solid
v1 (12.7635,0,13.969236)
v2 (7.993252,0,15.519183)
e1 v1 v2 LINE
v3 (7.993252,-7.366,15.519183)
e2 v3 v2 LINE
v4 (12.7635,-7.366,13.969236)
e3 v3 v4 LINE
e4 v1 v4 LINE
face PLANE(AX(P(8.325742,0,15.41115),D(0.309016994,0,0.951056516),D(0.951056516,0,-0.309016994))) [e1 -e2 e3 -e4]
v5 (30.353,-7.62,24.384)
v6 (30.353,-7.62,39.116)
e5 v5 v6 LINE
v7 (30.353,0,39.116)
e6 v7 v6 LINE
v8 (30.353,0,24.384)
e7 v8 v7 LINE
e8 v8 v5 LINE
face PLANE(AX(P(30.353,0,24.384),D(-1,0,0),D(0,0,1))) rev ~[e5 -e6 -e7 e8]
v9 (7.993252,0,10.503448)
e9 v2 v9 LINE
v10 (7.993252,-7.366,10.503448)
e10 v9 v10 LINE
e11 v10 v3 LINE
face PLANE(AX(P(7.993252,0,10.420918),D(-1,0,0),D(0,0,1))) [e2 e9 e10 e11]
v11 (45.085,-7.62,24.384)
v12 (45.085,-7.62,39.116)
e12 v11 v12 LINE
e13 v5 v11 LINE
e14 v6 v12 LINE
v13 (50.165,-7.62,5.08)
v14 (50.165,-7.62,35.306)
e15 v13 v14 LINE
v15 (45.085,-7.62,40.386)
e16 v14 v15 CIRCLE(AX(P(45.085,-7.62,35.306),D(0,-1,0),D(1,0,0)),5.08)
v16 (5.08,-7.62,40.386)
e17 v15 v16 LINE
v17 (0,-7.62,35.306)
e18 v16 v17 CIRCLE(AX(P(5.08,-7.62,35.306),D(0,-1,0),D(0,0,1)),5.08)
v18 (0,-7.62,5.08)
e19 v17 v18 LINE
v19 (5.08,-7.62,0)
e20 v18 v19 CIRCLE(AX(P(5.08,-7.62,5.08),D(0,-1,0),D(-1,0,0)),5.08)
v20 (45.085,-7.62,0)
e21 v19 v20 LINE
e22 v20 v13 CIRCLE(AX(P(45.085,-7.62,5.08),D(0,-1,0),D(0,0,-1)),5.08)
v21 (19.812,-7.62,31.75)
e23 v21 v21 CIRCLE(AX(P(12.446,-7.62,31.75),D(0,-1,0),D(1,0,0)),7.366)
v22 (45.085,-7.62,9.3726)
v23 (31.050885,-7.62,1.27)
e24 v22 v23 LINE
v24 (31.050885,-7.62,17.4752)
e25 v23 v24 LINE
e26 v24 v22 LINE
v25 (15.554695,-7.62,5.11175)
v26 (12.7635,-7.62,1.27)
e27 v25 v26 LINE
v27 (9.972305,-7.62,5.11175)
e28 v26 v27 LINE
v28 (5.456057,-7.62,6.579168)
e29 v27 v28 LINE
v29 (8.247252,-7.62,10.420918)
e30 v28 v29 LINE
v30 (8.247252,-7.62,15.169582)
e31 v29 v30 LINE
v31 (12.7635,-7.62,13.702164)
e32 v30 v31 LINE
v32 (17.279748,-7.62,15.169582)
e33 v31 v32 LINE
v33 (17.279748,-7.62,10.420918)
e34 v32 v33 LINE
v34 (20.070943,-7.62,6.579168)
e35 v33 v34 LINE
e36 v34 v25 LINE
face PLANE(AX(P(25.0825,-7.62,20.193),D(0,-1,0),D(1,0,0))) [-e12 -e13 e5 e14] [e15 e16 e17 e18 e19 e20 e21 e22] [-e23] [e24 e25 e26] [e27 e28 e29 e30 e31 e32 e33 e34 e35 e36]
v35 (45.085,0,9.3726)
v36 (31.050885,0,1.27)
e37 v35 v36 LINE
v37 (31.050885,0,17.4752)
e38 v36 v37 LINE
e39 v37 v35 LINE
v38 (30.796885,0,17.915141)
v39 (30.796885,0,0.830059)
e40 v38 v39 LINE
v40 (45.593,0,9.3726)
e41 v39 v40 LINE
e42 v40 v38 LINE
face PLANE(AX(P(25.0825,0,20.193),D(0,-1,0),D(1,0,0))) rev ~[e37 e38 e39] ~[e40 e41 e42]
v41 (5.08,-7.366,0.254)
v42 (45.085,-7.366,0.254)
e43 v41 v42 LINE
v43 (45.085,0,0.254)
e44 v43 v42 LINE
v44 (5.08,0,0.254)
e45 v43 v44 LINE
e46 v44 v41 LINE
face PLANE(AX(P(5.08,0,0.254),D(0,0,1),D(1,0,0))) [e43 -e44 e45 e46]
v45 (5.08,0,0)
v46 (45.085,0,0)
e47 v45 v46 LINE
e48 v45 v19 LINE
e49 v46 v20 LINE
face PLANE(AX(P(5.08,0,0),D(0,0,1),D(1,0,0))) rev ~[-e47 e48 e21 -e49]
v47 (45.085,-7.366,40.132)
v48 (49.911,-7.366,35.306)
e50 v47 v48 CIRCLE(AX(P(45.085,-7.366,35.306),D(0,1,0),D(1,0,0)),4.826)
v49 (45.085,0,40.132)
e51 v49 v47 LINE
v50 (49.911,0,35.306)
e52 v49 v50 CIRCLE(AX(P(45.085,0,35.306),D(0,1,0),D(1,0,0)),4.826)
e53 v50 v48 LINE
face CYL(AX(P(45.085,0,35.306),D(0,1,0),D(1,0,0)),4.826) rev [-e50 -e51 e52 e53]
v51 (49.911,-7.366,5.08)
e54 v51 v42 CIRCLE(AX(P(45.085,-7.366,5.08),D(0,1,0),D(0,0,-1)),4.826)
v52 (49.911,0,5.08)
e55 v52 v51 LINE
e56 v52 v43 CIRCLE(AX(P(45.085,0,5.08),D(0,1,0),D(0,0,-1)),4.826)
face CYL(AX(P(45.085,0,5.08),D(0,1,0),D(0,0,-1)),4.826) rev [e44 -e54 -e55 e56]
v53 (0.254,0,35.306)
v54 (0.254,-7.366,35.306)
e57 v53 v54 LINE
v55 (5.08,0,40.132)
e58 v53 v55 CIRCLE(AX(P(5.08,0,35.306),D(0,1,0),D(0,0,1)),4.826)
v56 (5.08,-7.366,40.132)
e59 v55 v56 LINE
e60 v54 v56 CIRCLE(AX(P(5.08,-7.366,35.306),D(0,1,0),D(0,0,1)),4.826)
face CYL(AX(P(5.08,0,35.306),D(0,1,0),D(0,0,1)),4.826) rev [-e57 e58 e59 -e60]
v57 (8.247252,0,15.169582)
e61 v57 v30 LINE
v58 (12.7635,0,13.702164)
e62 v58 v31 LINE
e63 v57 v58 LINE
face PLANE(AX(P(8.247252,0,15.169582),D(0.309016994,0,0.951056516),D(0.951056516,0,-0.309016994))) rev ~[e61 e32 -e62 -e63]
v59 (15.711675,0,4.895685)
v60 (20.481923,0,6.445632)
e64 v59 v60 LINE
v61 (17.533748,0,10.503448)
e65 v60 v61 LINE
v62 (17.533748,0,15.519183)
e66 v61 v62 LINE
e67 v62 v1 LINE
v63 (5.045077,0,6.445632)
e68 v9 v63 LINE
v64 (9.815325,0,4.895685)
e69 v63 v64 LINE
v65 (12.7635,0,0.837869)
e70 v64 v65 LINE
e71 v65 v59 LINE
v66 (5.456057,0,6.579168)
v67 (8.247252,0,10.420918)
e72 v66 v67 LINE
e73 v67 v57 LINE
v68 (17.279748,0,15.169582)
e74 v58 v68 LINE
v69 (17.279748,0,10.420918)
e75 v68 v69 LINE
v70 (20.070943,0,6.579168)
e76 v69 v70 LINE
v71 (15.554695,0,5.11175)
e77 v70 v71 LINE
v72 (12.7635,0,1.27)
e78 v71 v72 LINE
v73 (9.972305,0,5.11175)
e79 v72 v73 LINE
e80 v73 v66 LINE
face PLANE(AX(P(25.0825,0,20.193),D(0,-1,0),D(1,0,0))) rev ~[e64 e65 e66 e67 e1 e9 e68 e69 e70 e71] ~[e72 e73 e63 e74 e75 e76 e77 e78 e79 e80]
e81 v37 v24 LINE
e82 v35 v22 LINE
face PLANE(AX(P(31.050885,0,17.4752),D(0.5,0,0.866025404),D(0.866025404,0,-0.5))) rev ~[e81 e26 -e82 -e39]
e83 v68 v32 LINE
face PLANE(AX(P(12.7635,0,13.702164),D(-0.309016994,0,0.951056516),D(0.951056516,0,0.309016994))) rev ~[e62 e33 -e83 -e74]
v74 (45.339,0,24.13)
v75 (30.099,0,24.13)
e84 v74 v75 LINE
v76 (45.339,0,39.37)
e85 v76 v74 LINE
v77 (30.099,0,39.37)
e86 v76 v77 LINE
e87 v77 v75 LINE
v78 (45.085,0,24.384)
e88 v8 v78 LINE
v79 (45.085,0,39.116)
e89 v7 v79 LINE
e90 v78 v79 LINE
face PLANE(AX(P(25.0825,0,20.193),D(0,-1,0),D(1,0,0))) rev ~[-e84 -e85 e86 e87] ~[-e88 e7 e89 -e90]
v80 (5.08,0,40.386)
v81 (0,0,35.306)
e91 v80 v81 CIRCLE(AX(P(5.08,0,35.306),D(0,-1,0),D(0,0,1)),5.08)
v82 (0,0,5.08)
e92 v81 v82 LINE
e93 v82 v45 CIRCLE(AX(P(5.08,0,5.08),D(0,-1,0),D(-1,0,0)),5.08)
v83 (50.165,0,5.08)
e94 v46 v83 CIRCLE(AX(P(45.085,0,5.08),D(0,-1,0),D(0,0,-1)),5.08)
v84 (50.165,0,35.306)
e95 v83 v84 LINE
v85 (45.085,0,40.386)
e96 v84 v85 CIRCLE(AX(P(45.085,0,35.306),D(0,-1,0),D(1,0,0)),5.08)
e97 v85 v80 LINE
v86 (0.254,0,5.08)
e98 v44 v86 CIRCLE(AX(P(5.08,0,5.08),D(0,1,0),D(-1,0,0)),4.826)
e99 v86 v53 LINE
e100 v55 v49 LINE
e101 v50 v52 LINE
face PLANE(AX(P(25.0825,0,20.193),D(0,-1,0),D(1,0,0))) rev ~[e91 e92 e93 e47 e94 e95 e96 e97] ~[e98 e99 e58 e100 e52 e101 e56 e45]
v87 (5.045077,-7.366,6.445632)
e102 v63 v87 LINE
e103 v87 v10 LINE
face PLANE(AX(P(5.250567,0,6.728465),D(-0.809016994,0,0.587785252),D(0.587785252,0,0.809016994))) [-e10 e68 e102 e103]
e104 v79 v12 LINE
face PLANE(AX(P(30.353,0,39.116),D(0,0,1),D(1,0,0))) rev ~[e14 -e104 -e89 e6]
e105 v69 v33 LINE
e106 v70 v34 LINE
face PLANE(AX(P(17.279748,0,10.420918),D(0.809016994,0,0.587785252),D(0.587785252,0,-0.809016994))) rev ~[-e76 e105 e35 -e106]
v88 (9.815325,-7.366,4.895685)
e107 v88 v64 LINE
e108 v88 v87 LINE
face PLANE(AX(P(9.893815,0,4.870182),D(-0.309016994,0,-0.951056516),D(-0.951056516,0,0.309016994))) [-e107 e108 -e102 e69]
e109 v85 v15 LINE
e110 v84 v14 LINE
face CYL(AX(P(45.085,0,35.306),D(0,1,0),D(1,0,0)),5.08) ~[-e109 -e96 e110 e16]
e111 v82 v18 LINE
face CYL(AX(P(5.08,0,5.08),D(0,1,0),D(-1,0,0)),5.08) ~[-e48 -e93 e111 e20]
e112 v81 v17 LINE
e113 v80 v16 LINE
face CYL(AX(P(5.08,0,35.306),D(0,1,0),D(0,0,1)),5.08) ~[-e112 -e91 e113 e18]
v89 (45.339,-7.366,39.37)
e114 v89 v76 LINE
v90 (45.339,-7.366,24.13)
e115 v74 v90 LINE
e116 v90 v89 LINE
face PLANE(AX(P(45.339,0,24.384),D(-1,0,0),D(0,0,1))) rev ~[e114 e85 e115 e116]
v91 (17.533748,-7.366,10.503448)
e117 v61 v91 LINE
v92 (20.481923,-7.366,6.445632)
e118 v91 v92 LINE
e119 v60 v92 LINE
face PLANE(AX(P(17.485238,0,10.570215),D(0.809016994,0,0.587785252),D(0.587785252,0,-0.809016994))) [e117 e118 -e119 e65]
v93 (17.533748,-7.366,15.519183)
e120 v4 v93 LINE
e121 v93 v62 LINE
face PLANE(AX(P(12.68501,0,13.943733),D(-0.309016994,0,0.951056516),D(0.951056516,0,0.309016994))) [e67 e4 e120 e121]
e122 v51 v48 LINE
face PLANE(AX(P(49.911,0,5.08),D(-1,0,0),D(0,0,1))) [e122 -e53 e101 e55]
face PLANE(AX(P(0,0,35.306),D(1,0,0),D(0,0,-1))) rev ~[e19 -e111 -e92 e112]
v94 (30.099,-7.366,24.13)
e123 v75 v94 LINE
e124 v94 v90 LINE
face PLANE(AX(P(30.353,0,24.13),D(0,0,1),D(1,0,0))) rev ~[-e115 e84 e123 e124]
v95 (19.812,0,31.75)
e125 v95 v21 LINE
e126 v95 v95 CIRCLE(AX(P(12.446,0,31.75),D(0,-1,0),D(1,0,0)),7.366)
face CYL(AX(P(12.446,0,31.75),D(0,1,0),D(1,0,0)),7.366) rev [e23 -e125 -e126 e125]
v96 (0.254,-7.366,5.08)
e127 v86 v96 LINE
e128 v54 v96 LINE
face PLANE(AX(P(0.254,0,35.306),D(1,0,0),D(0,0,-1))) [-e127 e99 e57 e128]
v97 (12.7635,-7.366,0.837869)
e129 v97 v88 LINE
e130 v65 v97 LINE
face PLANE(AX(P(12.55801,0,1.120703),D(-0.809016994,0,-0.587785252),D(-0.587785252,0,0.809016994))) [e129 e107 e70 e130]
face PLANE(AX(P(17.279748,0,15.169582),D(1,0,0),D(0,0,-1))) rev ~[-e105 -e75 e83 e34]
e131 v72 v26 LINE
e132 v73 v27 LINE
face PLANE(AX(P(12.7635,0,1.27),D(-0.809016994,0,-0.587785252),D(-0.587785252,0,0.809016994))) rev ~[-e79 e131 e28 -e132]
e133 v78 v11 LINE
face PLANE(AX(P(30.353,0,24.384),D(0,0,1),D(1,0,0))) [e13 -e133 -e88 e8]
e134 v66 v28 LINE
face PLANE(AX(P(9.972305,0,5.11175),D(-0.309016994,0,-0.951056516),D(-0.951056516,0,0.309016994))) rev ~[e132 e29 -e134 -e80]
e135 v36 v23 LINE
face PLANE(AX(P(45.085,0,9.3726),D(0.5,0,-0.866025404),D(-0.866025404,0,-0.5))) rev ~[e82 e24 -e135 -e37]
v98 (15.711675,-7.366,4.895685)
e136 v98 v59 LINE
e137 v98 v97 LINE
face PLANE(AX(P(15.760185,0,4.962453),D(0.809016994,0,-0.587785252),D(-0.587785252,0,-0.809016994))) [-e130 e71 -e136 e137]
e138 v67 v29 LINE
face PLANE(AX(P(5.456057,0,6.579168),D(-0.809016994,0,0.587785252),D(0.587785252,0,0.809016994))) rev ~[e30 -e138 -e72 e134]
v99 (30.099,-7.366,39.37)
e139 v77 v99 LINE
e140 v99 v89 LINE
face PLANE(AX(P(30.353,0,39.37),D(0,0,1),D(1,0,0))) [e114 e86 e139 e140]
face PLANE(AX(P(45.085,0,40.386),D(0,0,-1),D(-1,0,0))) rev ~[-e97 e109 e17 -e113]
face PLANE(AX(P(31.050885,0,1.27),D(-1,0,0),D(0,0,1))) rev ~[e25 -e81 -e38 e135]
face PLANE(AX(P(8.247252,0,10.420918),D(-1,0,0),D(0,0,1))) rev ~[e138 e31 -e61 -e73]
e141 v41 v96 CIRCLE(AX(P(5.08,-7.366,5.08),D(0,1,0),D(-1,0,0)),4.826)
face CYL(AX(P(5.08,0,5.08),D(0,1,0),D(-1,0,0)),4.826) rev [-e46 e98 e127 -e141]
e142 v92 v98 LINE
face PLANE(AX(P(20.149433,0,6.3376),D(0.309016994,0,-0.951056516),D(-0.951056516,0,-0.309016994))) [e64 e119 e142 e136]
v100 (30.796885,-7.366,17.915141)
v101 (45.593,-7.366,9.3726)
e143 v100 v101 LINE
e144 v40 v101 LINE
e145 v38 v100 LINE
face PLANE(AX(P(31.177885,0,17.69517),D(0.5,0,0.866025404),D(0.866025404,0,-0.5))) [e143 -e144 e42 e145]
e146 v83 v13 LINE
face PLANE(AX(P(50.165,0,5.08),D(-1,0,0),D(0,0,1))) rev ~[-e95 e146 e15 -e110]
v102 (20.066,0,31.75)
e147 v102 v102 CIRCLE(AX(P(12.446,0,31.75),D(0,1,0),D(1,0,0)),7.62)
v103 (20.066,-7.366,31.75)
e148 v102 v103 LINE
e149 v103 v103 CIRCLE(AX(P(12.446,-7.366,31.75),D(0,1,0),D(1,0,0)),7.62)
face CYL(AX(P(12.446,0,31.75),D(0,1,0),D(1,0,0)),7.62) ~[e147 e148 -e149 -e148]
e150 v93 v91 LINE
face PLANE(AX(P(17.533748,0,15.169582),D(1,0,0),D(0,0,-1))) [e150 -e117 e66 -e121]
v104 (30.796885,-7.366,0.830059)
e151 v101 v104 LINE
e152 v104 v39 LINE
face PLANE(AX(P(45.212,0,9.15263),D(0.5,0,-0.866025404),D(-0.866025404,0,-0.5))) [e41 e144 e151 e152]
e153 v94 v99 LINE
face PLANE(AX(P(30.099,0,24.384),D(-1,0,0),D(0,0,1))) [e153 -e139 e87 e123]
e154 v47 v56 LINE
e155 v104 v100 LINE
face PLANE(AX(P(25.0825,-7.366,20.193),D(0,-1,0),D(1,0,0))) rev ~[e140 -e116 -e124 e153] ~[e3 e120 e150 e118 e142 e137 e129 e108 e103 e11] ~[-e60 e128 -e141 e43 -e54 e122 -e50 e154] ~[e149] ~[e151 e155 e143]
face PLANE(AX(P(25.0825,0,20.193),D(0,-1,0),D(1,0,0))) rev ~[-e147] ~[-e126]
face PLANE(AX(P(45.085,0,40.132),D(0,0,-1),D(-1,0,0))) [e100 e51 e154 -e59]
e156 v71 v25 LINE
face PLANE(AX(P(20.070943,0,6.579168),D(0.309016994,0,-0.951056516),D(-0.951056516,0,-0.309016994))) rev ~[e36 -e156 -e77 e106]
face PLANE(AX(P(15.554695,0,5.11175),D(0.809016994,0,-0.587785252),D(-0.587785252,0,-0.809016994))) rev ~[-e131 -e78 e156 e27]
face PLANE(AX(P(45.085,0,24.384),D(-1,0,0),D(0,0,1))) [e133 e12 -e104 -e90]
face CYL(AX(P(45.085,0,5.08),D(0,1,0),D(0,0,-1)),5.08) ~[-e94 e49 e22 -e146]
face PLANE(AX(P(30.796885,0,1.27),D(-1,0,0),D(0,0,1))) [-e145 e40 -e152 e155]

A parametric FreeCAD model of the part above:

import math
import FreeCAD as App
import Part
import Sketcher
from FreeCAD import Vector
Q = App.Units.Quantity


def faces_at(feature, points):
    """Names of the faces that lie closest to the given points."""
    faces = feature.Shape.Faces
    near = lambda p: min(range(len(faces)), key=lambda i: faces[i].distToShape(Part.Vertex(*p))[0])
    return sorted({f"Face{near(p) + 1}" for p in points})


def add_polygon(sketch, points):
    """Adds a closed chain of lines whose ends are joined by coincident constraints."""
    first, n = sketch.GeometryCount, len(points)
    for a, b in zip(points, points[1:] + points[:1]):
        sketch.addGeometry(Part.LineSegment(App.Vector(*a, 0), App.Vector(*b, 0)), False)
    for i in range(n):
        sketch.addConstraint(Sketcher.Constraint("Coincident", first + i, 2, first + (i + 1) % n, 1))

doc = App.newDocument("Part")
body = doc.addObject("PartDesign::Body", "Body")

# Sketch on XZ plane
sketch1 = body.newObject("Sketcher::SketchObject", "Sketch")
sketch1.AttachmentSupport = (doc.getObject("XZ_Plane"), [""])
sketch1.MapMode = "FlatFace"
sketch1.addGeometry(Part.ArcOfCircle(Part.Circle(Vector(5.08, 5.08, 0), Vector(0, 0, 1), 5.08), math.radians(180), math.radians(270)), False)  # 0
sketch1.addGeometry(Part.LineSegment(Vector(5.08, 0, 0), Vector(45.085, 0, 0)), False)  # 1
sketch1.addGeometry(Part.ArcOfCircle(Part.Circle(Vector(45.085, 5.08, 0), Vector(0, 0, 1), 5.08), math.radians(-90), math.radians(0)), False)  # 2
sketch1.addGeometry(Part.LineSegment(Vector(50.165, 5.08, 0), Vector(50.165, 35.306, 0)), False)  # 3
sketch1.addGeometry(Part.ArcOfCircle(Part.Circle(Vector(45.085, 35.306, 0), Vector(0, 0, 1), 5.08), math.radians(0), math.radians(90)), False)  # 4
sketch1.addGeometry(Part.LineSegment(Vector(45.085, 40.386, 0), Vector(5.08, 40.386, 0)), False)  # 5
sketch1.addGeometry(Part.ArcOfCircle(Part.Circle(Vector(5.08, 35.306, 0), Vector(0, 0, 1), 5.08), math.radians(90), math.radians(180)), False)  # 6
sketch1.addGeometry(Part.LineSegment(Vector(0, 35.306, 0), Vector(0, 5.08, 0)), False)  # 7
add_polygon(sketch1, [(5.456057, 6.579168), (8.247252, 10.420918), (8.247252, 15.169582), (12.7635, 13.702164), (17.279748, 15.169582), (17.279748, 10.420918), (20.070943, 6.579168), (15.554695, 5.11175), (12.7635, 1.27), (9.972305, 5.11175)])  # lines 8-17
add_polygon(sketch1, [(45.085, 9.3726), (31.050885, 1.27), (31.050885, 17.4752)])  # lines 18-20
sketch1.addGeometry(Part.Circle(Vector(12.446, 31.75, 0), Vector(0, 0, 1), 7.366), False)  # 21
add_polygon(sketch1, [(45.085, 24.384), (30.353, 24.384), (30.353, 39.116), (45.085, 39.116)])  # lines 22-25
sketch1.addConstraint([
    Sketcher.Constraint("Tangent", 0, 2, 1, 1),
    Sketcher.Constraint("Tangent", 1, 2, 2, 1),
    Sketcher.Constraint("Tangent", 2, 2, 3, 1),
    Sketcher.Constraint("Tangent", 3, 2, 4, 1),
    Sketcher.Constraint("Tangent", 4, 2, 5, 1),
    Sketcher.Constraint("Tangent", 5, 2, 6, 1),
    Sketcher.Constraint("Tangent", 6, 2, 7, 1),
    Sketcher.Constraint("Tangent", 7, 2, 0, 1),
    Sketcher.Constraint("Horizontal", 1),
    Sketcher.Constraint("Vertical", 3),
    Sketcher.Constraint("Horizontal", 5),
    Sketcher.Constraint("Vertical", 7),
    Sketcher.Constraint("Vertical", 9),
    Sketcher.Constraint("Vertical", 12),
    Sketcher.Constraint("Vertical", 19),
    Sketcher.Constraint("Horizontal", 22),
    Sketcher.Constraint("Vertical", 23),
    Sketcher.Constraint("Horizontal", 24),
    Sketcher.Constraint("Vertical", 25),
    Sketcher.Constraint("Equal", 0, 2),
    Sketcher.Constraint("Equal", 2, 4),
    Sketcher.Constraint("Equal", 4, 6),
    Sketcher.Constraint("PointOnObject", 0, 2, -1),
    Sketcher.Constraint("PointOnObject", 6, 2, -2),
    Sketcher.Constraint("Parallel", 11, 14),
    Sketcher.Constraint("Parallel", 8, 15),
    Sketcher.Constraint("Parallel", 13, 16),
    Sketcher.Constraint("Parallel", 10, 17),
    Sketcher.Constraint("Horizontal", 9, 2, 11, 2),
    Sketcher.Constraint("Horizontal", 8, 2, 12, 2),
    Sketcher.Constraint("Horizontal", 14, 2, 16, 2),
    Sketcher.Constraint("Horizontal", 13, 2, 17, 2),
    Sketcher.Constraint("Horizontal", 15, 2, 18, 2),
    Sketcher.Constraint("Vertical", 10, 2, 15, 2),
    Sketcher.Constraint("Vertical", 4, 2, 20, 2),
    Sketcher.Constraint("Vertical", 20, 2, 24, 2),
    Sketcher.Constraint("Equal", 24, 23),
    Sketcher.Constraint("Equal", 8, 10),
    Sketcher.Constraint("Equal", 10, 11),
    Sketcher.Constraint("Equal", 13, 14),
    Sketcher.Constraint("Equal", 18, 20),
    Sketcher.Constraint("Radius", 0, Q("0.2 in")),
    Sketcher.Constraint("Diameter", 21, Q("0.58 in")),
    Sketcher.Constraint("Angle", 8, Q("54 deg")),
    Sketcher.Constraint("Angle", 10, Q("-18 deg")),
    Sketcher.Constraint("Angle", 18, Q("-150 deg")),
    Sketcher.Constraint("DistanceX", 22, 2, 22, 1, Q("0.58 in")),
    Sketcher.Constraint("DistanceY", 3, 1, 3, 2, Q("1.19 in")),
    Sketcher.Constraint("DistanceX", 1, 1, 1, 2, Q("1.575 in")),
    Sketcher.Constraint("DistanceY", 19, 1, 19, 2, Q("0.638 in")),
    Sketcher.Constraint("DistanceX", -1, 1, 21, 3, Q("0.49 in")),
    Sketcher.Constraint("DistanceY", -1, 1, 21, 3, Q("1.25 in")),
    Sketcher.Constraint("DistanceY", -1, 1, 15, 2, Q("0.05 in")),
    Sketcher.Constraint("DistanceY", -1, 1, 22, 2, Q("0.96 in")),
    Sketcher.Constraint("DistanceX", -1, 1, 10, 2, Q("0.5025 in")),
    Sketcher.Constraint("DistanceY", 9, 1, 9, 2, Q("4.748664 mm")),
    Sketcher.Constraint("DistanceY", -1, 1, 14, 2, Q("5.11175 mm")),
])
pad1 = body.newObject("PartDesign::Pad", "Pad")
pad1.Profile = sketch1
pad1.Length = Q("0.3 in")
doc.recompute()

thickness = body.newObject("PartDesign::Thickness", "Thickness")
thickness.Base = (pad1, faces_at(pad1, [(25.082, 0, 20.193)]))
thickness.Value = Q("0.01 in")
thickness.Reversed = True
thickness.Join = "Intersection"

doc.recompute()
